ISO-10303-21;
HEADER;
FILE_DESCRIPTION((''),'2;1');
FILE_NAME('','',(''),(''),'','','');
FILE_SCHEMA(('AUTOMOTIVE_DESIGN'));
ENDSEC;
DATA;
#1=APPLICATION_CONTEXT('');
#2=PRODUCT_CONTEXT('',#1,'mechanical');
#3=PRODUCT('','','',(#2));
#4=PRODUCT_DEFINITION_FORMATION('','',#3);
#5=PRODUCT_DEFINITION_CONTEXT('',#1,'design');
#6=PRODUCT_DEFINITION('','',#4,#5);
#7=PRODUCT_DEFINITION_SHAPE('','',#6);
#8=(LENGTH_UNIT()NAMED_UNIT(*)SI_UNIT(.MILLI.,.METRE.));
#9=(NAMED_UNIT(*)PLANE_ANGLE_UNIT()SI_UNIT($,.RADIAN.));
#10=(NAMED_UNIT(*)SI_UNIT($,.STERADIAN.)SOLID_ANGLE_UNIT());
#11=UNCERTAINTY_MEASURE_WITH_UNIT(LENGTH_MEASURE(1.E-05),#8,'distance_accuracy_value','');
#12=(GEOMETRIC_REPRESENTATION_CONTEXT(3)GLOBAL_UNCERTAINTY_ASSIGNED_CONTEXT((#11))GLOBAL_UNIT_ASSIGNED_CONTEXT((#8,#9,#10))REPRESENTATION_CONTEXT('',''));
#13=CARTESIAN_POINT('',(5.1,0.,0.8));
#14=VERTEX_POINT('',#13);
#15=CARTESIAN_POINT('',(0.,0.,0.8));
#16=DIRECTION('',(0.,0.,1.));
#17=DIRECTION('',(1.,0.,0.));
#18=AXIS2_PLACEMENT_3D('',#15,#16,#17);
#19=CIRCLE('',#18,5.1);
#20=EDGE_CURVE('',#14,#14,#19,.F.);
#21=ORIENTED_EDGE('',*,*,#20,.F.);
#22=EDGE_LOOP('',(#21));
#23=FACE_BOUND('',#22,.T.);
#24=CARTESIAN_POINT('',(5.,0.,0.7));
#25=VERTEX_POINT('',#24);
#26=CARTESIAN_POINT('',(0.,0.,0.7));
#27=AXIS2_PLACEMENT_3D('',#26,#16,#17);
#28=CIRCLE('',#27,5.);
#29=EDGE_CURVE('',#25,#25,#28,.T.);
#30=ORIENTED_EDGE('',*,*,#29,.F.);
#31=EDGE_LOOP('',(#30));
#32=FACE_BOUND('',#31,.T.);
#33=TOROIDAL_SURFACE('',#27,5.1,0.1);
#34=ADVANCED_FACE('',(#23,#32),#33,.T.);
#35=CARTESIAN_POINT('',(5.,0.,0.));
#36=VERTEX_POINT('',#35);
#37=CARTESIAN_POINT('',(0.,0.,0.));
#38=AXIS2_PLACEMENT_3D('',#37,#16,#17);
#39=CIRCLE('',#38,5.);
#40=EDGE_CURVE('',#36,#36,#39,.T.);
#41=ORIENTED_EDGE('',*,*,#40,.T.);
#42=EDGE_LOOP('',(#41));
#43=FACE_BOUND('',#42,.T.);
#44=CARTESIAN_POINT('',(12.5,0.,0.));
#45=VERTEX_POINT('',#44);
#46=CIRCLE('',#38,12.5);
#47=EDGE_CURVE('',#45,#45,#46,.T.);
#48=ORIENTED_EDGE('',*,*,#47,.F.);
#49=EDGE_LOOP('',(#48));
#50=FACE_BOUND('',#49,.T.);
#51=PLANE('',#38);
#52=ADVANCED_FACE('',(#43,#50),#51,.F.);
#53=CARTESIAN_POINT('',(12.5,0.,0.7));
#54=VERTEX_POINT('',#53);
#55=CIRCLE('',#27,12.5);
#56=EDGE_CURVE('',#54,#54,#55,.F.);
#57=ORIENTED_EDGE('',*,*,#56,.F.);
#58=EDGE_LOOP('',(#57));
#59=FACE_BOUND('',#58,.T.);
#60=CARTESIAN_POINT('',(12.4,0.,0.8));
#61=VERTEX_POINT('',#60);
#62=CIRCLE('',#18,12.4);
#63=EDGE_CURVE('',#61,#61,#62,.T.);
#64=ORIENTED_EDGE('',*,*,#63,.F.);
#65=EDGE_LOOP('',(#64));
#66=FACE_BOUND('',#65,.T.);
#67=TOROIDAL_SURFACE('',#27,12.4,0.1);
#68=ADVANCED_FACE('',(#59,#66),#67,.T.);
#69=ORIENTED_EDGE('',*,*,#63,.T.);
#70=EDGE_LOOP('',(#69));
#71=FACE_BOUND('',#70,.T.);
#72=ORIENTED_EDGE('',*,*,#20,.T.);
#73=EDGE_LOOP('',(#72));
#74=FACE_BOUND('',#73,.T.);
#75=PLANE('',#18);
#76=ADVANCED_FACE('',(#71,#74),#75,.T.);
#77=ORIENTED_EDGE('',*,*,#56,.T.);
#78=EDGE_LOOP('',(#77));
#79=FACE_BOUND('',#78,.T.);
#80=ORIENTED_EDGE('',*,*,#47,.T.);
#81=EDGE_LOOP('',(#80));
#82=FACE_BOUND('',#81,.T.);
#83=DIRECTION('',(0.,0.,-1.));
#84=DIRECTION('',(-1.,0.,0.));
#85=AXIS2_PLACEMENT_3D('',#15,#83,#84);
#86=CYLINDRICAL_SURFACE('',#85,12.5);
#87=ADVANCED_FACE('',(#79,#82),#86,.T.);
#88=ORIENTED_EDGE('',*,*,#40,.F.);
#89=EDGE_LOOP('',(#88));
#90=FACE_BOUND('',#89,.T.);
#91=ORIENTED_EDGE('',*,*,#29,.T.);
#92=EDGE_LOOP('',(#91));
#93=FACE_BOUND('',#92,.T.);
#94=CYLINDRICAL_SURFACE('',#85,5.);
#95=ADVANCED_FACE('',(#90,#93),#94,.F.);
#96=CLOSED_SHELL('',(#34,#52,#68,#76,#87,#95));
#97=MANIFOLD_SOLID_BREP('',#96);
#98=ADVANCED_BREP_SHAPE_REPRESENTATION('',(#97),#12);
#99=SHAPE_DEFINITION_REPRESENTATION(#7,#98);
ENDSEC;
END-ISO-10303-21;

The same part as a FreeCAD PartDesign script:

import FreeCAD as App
import Part
import Sketcher
from FreeCAD import Vector
Q = App.Units.Quantity


def edges_at(feature, points):
    """Names of the edges that pass closest to the given points."""
    edges = feature.Shape.Edges
    near = lambda p: min(range(len(edges)), key=lambda i: edges[i].distToShape(Part.Vertex(*p))[0])
    return sorted({f"Edge{near(p) + 1}" for p in points})

doc = App.newDocument("Part")
body = doc.addObject("PartDesign::Body", "Body")

sketch1 = body.newObject("Sketcher::SketchObject", "Sketch")
sketch1.AttachmentSupport = (doc.getObject("XY_Plane"), [""])
sketch1.MapMode = "FlatFace"
sketch1.addGeometry([
    Part.Circle(Vector(0, 0, 0), Vector(0, 0, 1), 12.5),
    Part.Circle(Vector(0, 0, 0), Vector(0, 0, 1), 5),
], False)
sketch1.addConstraint([
    Sketcher.Constraint("Coincident", 0, 3, -1, 1),
    Sketcher.Constraint("Coincident", 1, 3, -1, 1),
    Sketcher.Constraint("Diameter", 0, Q("25 mm")),
    Sketcher.Constraint("Diameter", 1, Q("10 mm")),
])
pad1 = body.newObject("PartDesign::Pad", "Pad")
pad1.Profile = sketch1
pad1.Length = 0.8
doc.recompute()

fillet = body.newObject("PartDesign::Fillet", "Fillet")
fillet.Base = (pad1, edges_at(pad1, [(-12.5, 0, 0.8), (-5, 0, 0.8)]))
fillet.Radius = 0.1

doc.recompute()
